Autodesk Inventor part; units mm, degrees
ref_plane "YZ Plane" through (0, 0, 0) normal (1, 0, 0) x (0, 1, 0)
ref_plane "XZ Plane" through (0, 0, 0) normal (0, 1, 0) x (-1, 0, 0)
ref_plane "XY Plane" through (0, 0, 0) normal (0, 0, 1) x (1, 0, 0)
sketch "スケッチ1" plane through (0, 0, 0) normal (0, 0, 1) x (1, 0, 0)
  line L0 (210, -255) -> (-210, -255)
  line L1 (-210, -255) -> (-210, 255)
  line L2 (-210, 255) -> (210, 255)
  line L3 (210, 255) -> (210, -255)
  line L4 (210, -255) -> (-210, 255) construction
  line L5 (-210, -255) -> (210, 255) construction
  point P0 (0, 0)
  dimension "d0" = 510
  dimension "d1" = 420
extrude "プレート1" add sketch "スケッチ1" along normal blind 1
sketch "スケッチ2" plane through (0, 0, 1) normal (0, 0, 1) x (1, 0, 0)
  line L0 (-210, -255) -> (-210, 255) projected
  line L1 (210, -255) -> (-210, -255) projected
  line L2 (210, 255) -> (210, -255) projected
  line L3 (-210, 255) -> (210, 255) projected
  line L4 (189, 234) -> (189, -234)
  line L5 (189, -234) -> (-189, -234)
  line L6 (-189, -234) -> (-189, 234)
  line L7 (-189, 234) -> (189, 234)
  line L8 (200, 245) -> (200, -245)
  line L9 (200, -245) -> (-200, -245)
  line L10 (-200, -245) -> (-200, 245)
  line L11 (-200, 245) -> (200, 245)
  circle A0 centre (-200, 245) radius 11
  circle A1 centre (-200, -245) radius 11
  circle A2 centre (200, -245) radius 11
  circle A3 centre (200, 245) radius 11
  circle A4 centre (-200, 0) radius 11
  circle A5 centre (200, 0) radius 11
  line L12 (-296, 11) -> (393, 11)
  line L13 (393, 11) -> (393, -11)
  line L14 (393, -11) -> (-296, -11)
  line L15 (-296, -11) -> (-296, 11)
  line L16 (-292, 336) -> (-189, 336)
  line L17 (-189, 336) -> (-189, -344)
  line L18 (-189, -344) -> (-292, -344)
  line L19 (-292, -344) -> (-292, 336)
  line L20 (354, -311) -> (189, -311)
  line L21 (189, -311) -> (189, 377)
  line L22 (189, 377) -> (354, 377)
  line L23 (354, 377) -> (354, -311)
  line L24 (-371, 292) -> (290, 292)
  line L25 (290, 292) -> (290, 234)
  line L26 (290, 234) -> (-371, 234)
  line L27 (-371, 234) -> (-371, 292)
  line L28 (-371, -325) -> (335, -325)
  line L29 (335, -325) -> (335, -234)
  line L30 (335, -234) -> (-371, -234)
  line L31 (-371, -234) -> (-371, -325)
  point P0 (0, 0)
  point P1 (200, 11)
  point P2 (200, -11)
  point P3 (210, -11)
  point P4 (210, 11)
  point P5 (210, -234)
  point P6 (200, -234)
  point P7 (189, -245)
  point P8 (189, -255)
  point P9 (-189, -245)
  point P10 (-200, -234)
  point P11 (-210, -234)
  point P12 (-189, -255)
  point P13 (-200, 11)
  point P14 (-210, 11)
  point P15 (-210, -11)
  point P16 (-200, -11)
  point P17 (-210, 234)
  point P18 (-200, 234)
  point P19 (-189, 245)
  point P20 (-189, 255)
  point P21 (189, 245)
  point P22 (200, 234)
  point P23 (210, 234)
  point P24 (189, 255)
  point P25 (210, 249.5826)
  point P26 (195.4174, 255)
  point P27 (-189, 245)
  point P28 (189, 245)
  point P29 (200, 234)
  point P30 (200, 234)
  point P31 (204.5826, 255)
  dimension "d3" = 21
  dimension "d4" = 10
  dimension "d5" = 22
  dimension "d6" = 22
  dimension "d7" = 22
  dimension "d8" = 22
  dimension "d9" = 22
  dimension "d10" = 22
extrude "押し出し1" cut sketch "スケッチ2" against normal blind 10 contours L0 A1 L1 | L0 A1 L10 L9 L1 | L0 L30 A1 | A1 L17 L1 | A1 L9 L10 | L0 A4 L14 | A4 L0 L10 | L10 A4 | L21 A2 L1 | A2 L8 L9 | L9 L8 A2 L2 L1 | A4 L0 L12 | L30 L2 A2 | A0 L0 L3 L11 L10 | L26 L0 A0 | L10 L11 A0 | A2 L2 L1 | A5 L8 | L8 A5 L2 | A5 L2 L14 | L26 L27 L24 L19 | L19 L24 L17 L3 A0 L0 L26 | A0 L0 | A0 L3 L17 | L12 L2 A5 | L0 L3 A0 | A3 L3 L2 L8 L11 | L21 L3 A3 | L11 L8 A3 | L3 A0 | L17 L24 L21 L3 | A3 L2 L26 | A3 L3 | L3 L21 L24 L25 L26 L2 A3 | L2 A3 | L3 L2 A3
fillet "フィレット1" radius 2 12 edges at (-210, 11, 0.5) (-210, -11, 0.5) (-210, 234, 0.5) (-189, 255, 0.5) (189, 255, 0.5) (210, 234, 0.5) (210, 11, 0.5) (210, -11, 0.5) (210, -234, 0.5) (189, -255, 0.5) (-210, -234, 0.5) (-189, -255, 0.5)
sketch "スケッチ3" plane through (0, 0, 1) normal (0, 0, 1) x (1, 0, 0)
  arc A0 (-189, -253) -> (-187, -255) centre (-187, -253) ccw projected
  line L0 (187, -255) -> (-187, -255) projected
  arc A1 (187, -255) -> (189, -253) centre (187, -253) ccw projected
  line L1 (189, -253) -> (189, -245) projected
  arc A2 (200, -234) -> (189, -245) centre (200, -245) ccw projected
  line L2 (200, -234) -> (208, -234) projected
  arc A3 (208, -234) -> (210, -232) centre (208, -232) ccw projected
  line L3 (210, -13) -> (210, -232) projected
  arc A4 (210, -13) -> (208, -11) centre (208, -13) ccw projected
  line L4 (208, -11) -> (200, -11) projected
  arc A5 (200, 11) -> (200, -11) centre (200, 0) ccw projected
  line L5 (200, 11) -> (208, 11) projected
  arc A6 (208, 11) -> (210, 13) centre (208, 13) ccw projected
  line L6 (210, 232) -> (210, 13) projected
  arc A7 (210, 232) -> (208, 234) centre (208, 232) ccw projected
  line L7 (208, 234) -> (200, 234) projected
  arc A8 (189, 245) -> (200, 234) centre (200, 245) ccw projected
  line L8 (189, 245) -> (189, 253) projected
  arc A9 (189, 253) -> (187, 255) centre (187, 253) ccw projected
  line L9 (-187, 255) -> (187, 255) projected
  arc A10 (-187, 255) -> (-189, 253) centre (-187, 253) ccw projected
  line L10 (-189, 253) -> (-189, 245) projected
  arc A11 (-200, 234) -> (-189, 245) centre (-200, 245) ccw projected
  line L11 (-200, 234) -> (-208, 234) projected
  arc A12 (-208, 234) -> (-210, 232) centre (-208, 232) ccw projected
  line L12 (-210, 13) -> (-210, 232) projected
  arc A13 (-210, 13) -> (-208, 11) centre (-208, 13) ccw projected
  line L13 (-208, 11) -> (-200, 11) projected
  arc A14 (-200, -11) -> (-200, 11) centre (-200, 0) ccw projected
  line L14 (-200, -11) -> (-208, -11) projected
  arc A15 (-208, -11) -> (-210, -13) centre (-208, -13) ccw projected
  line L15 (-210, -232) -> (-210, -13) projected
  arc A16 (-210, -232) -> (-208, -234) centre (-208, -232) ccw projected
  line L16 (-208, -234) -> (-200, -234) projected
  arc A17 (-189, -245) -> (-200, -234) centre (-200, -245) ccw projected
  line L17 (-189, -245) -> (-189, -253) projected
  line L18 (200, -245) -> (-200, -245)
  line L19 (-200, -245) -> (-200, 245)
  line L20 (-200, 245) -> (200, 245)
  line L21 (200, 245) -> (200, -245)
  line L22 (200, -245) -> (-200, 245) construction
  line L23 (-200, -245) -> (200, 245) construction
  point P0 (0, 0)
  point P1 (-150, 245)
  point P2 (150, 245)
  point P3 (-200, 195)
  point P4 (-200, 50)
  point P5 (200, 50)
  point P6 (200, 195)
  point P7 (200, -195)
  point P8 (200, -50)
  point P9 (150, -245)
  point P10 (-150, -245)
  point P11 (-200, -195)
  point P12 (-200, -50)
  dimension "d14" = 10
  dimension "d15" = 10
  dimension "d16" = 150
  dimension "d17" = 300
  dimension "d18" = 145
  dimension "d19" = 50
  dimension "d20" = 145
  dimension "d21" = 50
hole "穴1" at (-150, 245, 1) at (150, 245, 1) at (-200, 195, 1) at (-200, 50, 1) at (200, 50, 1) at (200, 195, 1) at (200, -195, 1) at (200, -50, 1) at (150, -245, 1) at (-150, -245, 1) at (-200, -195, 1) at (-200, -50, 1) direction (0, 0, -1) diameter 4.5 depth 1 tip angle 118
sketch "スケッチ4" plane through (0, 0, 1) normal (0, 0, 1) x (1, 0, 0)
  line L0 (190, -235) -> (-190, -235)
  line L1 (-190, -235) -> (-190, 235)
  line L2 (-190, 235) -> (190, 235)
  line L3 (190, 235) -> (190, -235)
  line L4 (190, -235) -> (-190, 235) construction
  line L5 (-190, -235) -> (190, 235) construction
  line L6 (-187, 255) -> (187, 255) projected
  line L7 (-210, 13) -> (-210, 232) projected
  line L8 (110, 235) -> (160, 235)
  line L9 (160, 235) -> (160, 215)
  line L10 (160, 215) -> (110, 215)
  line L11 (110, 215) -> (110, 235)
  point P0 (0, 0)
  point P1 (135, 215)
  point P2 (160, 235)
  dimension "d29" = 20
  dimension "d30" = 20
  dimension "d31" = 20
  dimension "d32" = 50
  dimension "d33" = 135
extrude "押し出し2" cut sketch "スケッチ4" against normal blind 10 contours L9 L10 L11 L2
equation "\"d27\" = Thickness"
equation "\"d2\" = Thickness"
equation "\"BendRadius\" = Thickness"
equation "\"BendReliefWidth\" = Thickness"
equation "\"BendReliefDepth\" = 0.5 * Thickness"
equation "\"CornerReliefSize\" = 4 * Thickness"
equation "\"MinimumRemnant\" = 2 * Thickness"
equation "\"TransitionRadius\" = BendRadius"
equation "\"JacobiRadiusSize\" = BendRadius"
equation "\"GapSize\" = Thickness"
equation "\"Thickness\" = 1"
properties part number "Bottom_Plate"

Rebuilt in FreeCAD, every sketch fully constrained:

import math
import FreeCAD as App
import Part
import Sketcher

V = App.Vector
Q = App.Units.Quantity


def edges_at(feature, points):
    """Names of the edges that pass closest to the given points."""
    edges = feature.Shape.Edges
    near = lambda p: min(range(len(edges)), key=lambda i: edges[i].distToShape(Part.Vertex(*p))[0])
    return sorted({f"Edge{near(p) + 1}" for p in points})

doc = App.newDocument("Part")
params = doc.addObject("Spreadsheet::Sheet", "Params")
for row, (alias, value) in enumerate([
    ("sketch1_width", "420 mm"),
    ("sketch1_height", "510 mm"),
    ("pad1_length", "1 mm"),
    ("sketch2_radius", "11 mm"),
    ("sketch2_width", "21 mm"),
    ("sketch2_width2", "378 mm"),
    ("sketch2_width3", "90 mm"),
    ("sketch2_width4", "661 mm"),
    ("pocket1_length", "10 mm"),
    ("fillet_radius", "2 mm"),
    ("sketch3_diameter", "4.5 mm"),
    ("hole_diameter", "4.5 mm"),
    ("hole_depth", "1 mm"),
    ("sketch4_width", "50 mm"),
    ("sketch4_height", "20 mm"),
    ("pocket2_length", "10 mm"),
], start=1):
    params.set(f"A{row}", alias)
    params.set(f"B{row}", "=" + value)
    params.setAlias(f"B{row}", alias)

body = doc.addObject("PartDesign::Body", "Body")

# Sketch on XY plane
sketch1 = doc.addObject("Sketcher::SketchObject", "Sketch")
body.addObject(sketch1)
sketch1.AttachmentSupport = (doc.XY_Plane, [""])
sketch1.MapMode = "FlatFace"
sketch1.addGeometry([
    Part.LineSegment(V(-210, -255, 0), V(210, -255, 0)),
    Part.LineSegment(V(210, -255, 0), V(210, 255, 0)),
    Part.LineSegment(V(210, 255, 0), V(-210, 255, 0)),
    Part.LineSegment(V(-210, 255, 0), V(-210, -255, 0)),
], False)
sketch1.addConstraint([
    Sketcher.Constraint("Coincident", 0, 2, 1, 1),
    Sketcher.Constraint("Coincident", 1, 2, 2, 1),
    Sketcher.Constraint("Coincident", 2, 2, 3, 1),
    Sketcher.Constraint("Coincident", 3, 2, 0, 1),
    Sketcher.Constraint("Horizontal", 0),
    Sketcher.Constraint("Vertical", 1),
    Sketcher.Constraint("Horizontal", 2),
    Sketcher.Constraint("Vertical", 3),
    Sketcher.Constraint("Symmetric", 0, 2, 2, 2, -1, 1),
    Sketcher.Constraint("DistanceX", 0, 1, 0, 2, Q("420 mm")),
    Sketcher.Constraint("DistanceY", 1, 1, 1, 2, Q("510 mm")),
])
sketch1.setExpression("Constraints[9]", "Params.sketch1_width")
sketch1.setExpression("Constraints[10]", "Params.sketch1_height")
pad1 = doc.addObject("PartDesign::Pad", "Pad")
body.addObject(pad1)
pad1.Profile = sketch1
pad1.setExpression("Length", "Params.pad1_length")

# Sketch on XY plane
sketch2 = doc.addObject("Sketcher::SketchObject", "Sketch001")
body.addObject(sketch2)
sketch2.AttachmentSupport = (doc.XY_Plane, [""])
sketch2.MapMode = "FlatFace"
sketch2.AttachmentOffset = App.Placement(V(0, 0, 1), App.Rotation())
sketch2.addGeometry([
    Part.LineSegment(V(-210, -255, 0), V(-189, -255, 0)),  # 0
    Part.LineSegment(V(-189, -255, 0), V(-189, -245, 0)),  # 1
    Part.ArcOfCircle(Part.Circle(V(-200, -245, 0), V(0, 0, 1), 11), math.radians(0), math.radians(90)),  # 2
    Part.LineSegment(V(-200, -234, 0), V(-210, -234, 0)),  # 3
    Part.LineSegment(V(-210, -234, 0), V(-210, -255, 0)),  # 4
    Part.LineSegment(V(-210, -11, 0), V(-200, -11, 0)),  # 5
    Part.ArcOfCircle(Part.Circle(V(-200, 0, 0), V(0, 0, 1), 11), math.radians(-90), math.radians(90)),  # 6
    Part.LineSegment(V(-200, 11, 0), V(-210, 11, 0)),  # 7
    Part.LineSegment(V(-210, 11, 0), V(-210, -11, 0)),  # 8
    Part.LineSegment(V(189, -245, 0), V(189, -255, 0)),  # 9
    Part.LineSegment(V(189, -255, 0), V(210, -255, 0)),  # 10
    Part.LineSegment(V(210, -255, 0), V(210, -234, 0)),  # 11
    Part.LineSegment(V(210, -234, 0), V(200, -234, 0)),  # 12
    Part.ArcOfCircle(Part.Circle(V(200, -245, 0), V(0, 0, 1), 11), math.radians(90), math.radians(180)),  # 13
    Part.ArcOfCircle(Part.Circle(V(-200, 245, 0), V(0, 0, 1), 11), math.radians(-90), math.radians(0)),  # 14
    Part.LineSegment(V(-189, 245, 0), V(-189, 255, 0)),  # 15
    Part.LineSegment(V(-189, 255, 0), V(189, 255, 0)),  # 16
    Part.LineSegment(V(189, 255, 0), V(189, 245, 0)),  # 17
    Part.ArcOfCircle(Part.Circle(V(200, 245, 0), V(0, 0, 1), 11), math.radians(180), math.radians(270)),  # 18
    Part.LineSegment(V(200, 234, 0), V(290, 234, 0)),  # 19
    Part.LineSegment(V(290, 234, 0), V(290, 292, 0)),  # 20
    Part.LineSegment(V(290, 292, 0), V(-371, 292, 0)),  # 21
    Part.LineSegment(V(-371, 292, 0), V(-371, 234, 0)),  # 22
    Part.LineSegment(V(-371, 234, 0), V(-200, 234, 0)),  # 23
    Part.LineSegment(V(200, -11, 0), V(210, -11, 0)),  # 24
    Part.LineSegment(V(210, -11, 0), V(210, 11, 0)),  # 25
    Part.LineSegment(V(210, 11, 0), V(200, 11, 0)),  # 26
    Part.ArcOfCircle(Part.Circle(V(200, 0, 0), V(0, 0, 1), 11), math.radians(90), math.radians(270)),  # 27
], False)
sketch2.addConstraint([
    Sketcher.Constraint("Coincident", 0, 2, 1, 1),
    Sketcher.Constraint("Tangent", 1, 2, 2, 1),
    Sketcher.Constraint("Tangent", 2, 2, 3, 1),
    Sketcher.Constraint("Coincident", 3, 2, 4, 1),
    Sketcher.Constraint("Coincident", 4, 2, 0, 1),
    Sketcher.Constraint("Tangent", 5, 2, 6, 1),
    Sketcher.Constraint("Tangent", 6, 2, 7, 1),
    Sketcher.Constraint("Coincident", 7, 2, 8, 1),
    Sketcher.Constraint("Coincident", 8, 2, 5, 1),
    Sketcher.Constraint("Coincident", 9, 2, 10, 1),
    Sketcher.Constraint("Coincident", 10, 2, 11, 1),
    Sketcher.Constraint("Coincident", 11, 2, 12, 1),
    Sketcher.Constraint("Tangent", 12, 2, 13, 1),
    Sketcher.Constraint("Tangent", 13, 2, 9, 1),
    Sketcher.Constraint("Tangent", 14, 2, 15, 1),
    Sketcher.Constraint("Coincident", 15, 2, 16, 1),
    Sketcher.Constraint("Coincident", 16, 2, 17, 1),
    Sketcher.Constraint("Tangent", 17, 2, 18, 1),
    Sketcher.Constraint("Tangent", 18, 2, 19, 1),
    Sketcher.Constraint("Coincident", 19, 2, 20, 1),
    Sketcher.Constraint("Coincident", 20, 2, 21, 1),
    Sketcher.Constraint("Coincident", 21, 2, 22, 1),
    Sketcher.Constraint("Coincident", 22, 2, 23, 1),
    Sketcher.Constraint("Tangent", 23, 2, 14, 1),
    Sketcher.Constraint("Coincident", 24, 2, 25, 1),
    Sketcher.Constraint("Coincident", 25, 2, 26, 1),
    Sketcher.Constraint("Tangent", 26, 2, 27, 1),
    Sketcher.Constraint("Tangent", 27, 2, 24, 1),
    Sketcher.Constraint("Horizontal", 0),
    Sketcher.Constraint("Vertical", 1),
    Sketcher.Constraint("Horizontal", 3),
    Sketcher.Constraint("Vertical", 4),
    Sketcher.Constraint("Horizontal", 5),
    Sketcher.Constraint("Horizontal", 7),
    Sketcher.Constraint("Vertical", 8),
    Sketcher.Constraint("Vertical", 9),
    Sketcher.Constraint("Horizontal", 10),
    Sketcher.Constraint("Vertical", 11),
    Sketcher.Constraint("Horizontal", 12),
    Sketcher.Constraint("Vertical", 15),
    Sketcher.Constraint("Horizontal", 16),
    Sketcher.Constraint("Vertical", 17),
    Sketcher.Constraint("Horizontal", 19),
    Sketcher.Constraint("Vertical", 20),
    Sketcher.Constraint("Horizontal", 21),
    Sketcher.Constraint("Vertical", 22),
    Sketcher.Constraint("Horizontal", 23),
    Sketcher.Constraint("Horizontal", 24),
    Sketcher.Constraint("Vertical", 25),
    Sketcher.Constraint("Horizontal", 26),
    Sketcher.Constraint("Equal", 2, 6),
    Sketcher.Constraint("Equal", 6, 13),
    Sketcher.Constraint("Equal", 13, 14),
    Sketcher.Constraint("Equal", 14, 18),
    Sketcher.Constraint("Equal", 18, 27),
    Sketcher.Constraint("Symmetric", 13, 3, 14, 3, -1, 1),
    Sketcher.Constraint("Symmetric", 2, 3, 18, 3, -1, 1),
    Sketcher.Constraint("Symmetric", 6, 3, 27, 3, -1, 1),
    Sketcher.Constraint("Symmetric", 2, 3, 13, 3, -2),
    Sketcher.Constraint("Symmetric", 4, 2, 10, 2, -2),
    Sketcher.Constraint("Symmetric", 8, 2, 24, 2, -2),
    Sketcher.Constraint("Vertical", 2, 3, 6, 3),
    Sketcher.Constraint("Vertical", 4, 2, 7, 2),
    Sketcher.Constraint("Equal", 26, 1),
    Sketcher.Constraint("Equal", 9, 15),
    Sketcher.Constraint("Radius", 2, Q("11 mm")),
    Sketcher.Constraint("DistanceX", 0, 1, 0, 2, Q("21 mm")),
    Sketcher.Constraint("DistanceX", 16, 1, 16, 2, Q("378 mm")),
    Sketcher.Constraint("DistanceX", 19, 1, 19, 2, Q("90 mm")),
    Sketcher.Constraint("DistanceX", 21, 2, 21, 1, Q("661 mm")),
    Sketcher.Constraint("DistanceY", 20, 1, 20, 2, Q("58 mm")),
    Sketcher.Constraint("DistanceY", 2, 3, -1, 1, Q("245 mm")),
])
sketch2.setExpression("Constraints[65]", "Params.sketch2_radius")
sketch2.setExpression("Constraints[66]", "Params.sketch2_width")
sketch2.setExpression("Constraints[67]", "Params.sketch2_width2")
sketch2.setExpression("Constraints[68]", "Params.sketch2_width3")
sketch2.setExpression("Constraints[69]", "Params.sketch2_width4")
pocket1 = doc.addObject("PartDesign::Pocket", "Pocket")
body.addObject(pocket1)
pocket1.Profile = sketch2
pocket1.setExpression("Length", "Params.pocket1_length")
doc.recompute()

fillet = doc.addObject("PartDesign::Fillet", "Fillet")
body.addObject(fillet)
fillet.Base = (pocket1, edges_at(pocket1, [
    (-210, 11, 0.5),
    (-210, -11, 0.5),
    (-210, 234, 0.5),
    (-189, 255, 0.5),
    (189, 255, 0.5),
    (210, 234, 0.5),
    (210, 11, 0.5),
    (210, -11, 0.5),
    (210, -234, 0.5),
    (189, -255, 0.5),
    (-210, -234, 0.5),
    (-189, -255, 0.5),
]))
fillet.setExpression("Radius", "Params.fillet_radius")

# Sketch on XY plane
sketch3 = doc.addObject("Sketcher::SketchObject", "Sketch002")
body.addObject(sketch3)
sketch3.AttachmentSupport = (doc.XY_Plane, [""])
sketch3.MapMode = "FlatFace"
sketch3.AttachmentOffset = App.Placement(V(0, 0, 1), App.Rotation())
sketch3.addGeometry([
    Part.Circle(V(-150, 245, 0), V(0, 0, 1), 2.2),  # 0
    Part.Circle(V(150, 245, 0), V(0, 0, 1), 2.2),  # 1
    Part.Circle(V(-200, 195, 0), V(0, 0, 1), 2.2),  # 2
    Part.Circle(V(-200, 50, 0), V(0, 0, 1), 2.2),  # 3
    Part.Circle(V(200, 50, 0), V(0, 0, 1), 2.2),  # 4
    Part.Circle(V(200, 195, 0), V(0, 0, 1), 2.2),  # 5
    Part.Circle(V(200, -195, 0), V(0, 0, 1), 2.2),  # 6
    Part.Circle(V(200, -50, 0), V(0, 0, 1), 2.2),  # 7
    Part.Circle(V(150, -245, 0), V(0, 0, 1), 2.2),  # 8
    Part.Circle(V(-150, -245, 0), V(0, 0, 1), 2.2),  # 9
    Part.Circle(V(-200, -195, 0), V(0, 0, 1), 2.2),  # 10
    Part.Circle(V(-200, -50, 0), V(0, 0, 1), 2.2),  # 11
], False)
sketch3.addConstraint([
    Sketcher.Constraint("Equal", 0, 1),
    Sketcher.Constraint("Equal", 1, 2),
    Sketcher.Constraint("Equal", 2, 3),
    Sketcher.Constraint("Equal", 3, 4),
    Sketcher.Constraint("Equal", 4, 5),
    Sketcher.Constraint("Equal", 5, 6),
    Sketcher.Constraint("Equal", 6, 7),
    Sketcher.Constraint("Equal", 7, 8),
    Sketcher.Constraint("Equal", 8, 9),
    Sketcher.Constraint("Equal", 9, 10),
    Sketcher.Constraint("Equal", 10, 11),
    Sketcher.Constraint("Symmetric", 2, 3, 6, 3, -1, 1),
    Sketcher.Constraint("Symmetric", 3, 3, 7, 3, -1, 1),
    Sketcher.Constraint("Symmetric", 0, 3, 8, 3, -1, 1),
    Sketcher.Constraint("Symmetric", 1, 3, 9, 3, -1, 1),
    Sketcher.Constraint("Symmetric", 5, 3, 10, 3, -1, 1),
    Sketcher.Constraint("Symmetric", 4, 3, 11, 3, -1, 1),
    Sketcher.Constraint("Symmetric", 0, 3, 1, 3, -2),
    Sketcher.Constraint("Symmetric", 3, 3, 4, 3, -2),
    Sketcher.Constraint("Symmetric", 2, 3, 5, 3, -2),
    Sketcher.Constraint("Vertical", 2, 3, 3, 3),
    Sketcher.Constraint("Diameter", 0, Q("4.5 mm")),
    Sketcher.Constraint("DistanceX", 0, 3, -1, 1, Q("150 mm")),
    Sketcher.Constraint("DistanceY", -1, 1, 0, 3, Q("245 mm")),
    Sketcher.Constraint("DistanceX", 2, 3, -1, 1, Q("200 mm")),
    Sketcher.Constraint("DistanceY", -1, 1, 2, 3, Q("195 mm")),
    Sketcher.Constraint("DistanceY", -1, 1, 3, 3, Q("50 mm")),
])
sketch3.setExpression("Constraints[21]", "Params.sketch3_diameter")
doc.recompute()
hole = doc.addObject("PartDesign::Hole", "Hole")
body.addObject(hole)
hole.Profile = sketch3
hole.ThreadType = "None"
hole.setExpression("Diameter", "Params.hole_diameter")
hole.DepthType = "Dimension"
hole.setExpression("Depth", "Params.hole_depth")
hole.DrillPoint = "Angled"
hole.DrillPointAngle = 118

# Sketch on XY plane
sketch4 = doc.addObject("Sketcher::SketchObject", "Sketch003")
body.addObject(sketch4)
sketch4.AttachmentSupport = (doc.XY_Plane, [""])
sketch4.MapMode = "FlatFace"
sketch4.AttachmentOffset = App.Placement(V(0, 0, 1), App.Rotation())
sketch4.addGeometry([
    Part.LineSegment(V(160, 215, 0), V(160, 235, 0)),
    Part.LineSegment(V(160, 235, 0), V(110, 235, 0)),
    Part.LineSegment(V(110, 235, 0), V(110, 215, 0)),
    Part.LineSegment(V(110, 215, 0), V(160, 215, 0)),
], False)
sketch4.addConstraint([
    Sketcher.Constraint("Coincident", 0, 2, 1, 1),
    Sketcher.Constraint("Coincident", 1, 2, 2, 1),
    Sketcher.Constraint("Coincident", 2, 2, 3, 1),
    Sketcher.Constraint("Coincident", 3, 2, 0, 1),
    Sketcher.Constraint("Vertical", 0),
    Sketcher.Constraint("Horizontal", 1),
    Sketcher.Constraint("Vertical", 2),
    Sketcher.Constraint("Horizontal", 3),
    Sketcher.Constraint("DistanceX", 1, 2, 1, 1, Q("50 mm")),
    Sketcher.Constraint("DistanceY", 0, 1, 0, 2, Q("20 mm")),
    Sketcher.Constraint("DistanceX", -1, 1, 0, 2, Q("160 mm")),
    Sketcher.Constraint("DistanceY", -1, 1, 0, 2, Q("235 mm")),
])
sketch4.setExpression("Constraints[8]", "Params.sketch4_width")
sketch4.setExpression("Constraints[9]", "Params.sketch4_height")
pocket2 = doc.addObject("PartDesign::Pocket", "Pocket001")
body.addObject(pocket2)
pocket2.Profile = sketch4
pocket2.setExpression("Length", "Params.pocket2_length")

doc.recompute()
